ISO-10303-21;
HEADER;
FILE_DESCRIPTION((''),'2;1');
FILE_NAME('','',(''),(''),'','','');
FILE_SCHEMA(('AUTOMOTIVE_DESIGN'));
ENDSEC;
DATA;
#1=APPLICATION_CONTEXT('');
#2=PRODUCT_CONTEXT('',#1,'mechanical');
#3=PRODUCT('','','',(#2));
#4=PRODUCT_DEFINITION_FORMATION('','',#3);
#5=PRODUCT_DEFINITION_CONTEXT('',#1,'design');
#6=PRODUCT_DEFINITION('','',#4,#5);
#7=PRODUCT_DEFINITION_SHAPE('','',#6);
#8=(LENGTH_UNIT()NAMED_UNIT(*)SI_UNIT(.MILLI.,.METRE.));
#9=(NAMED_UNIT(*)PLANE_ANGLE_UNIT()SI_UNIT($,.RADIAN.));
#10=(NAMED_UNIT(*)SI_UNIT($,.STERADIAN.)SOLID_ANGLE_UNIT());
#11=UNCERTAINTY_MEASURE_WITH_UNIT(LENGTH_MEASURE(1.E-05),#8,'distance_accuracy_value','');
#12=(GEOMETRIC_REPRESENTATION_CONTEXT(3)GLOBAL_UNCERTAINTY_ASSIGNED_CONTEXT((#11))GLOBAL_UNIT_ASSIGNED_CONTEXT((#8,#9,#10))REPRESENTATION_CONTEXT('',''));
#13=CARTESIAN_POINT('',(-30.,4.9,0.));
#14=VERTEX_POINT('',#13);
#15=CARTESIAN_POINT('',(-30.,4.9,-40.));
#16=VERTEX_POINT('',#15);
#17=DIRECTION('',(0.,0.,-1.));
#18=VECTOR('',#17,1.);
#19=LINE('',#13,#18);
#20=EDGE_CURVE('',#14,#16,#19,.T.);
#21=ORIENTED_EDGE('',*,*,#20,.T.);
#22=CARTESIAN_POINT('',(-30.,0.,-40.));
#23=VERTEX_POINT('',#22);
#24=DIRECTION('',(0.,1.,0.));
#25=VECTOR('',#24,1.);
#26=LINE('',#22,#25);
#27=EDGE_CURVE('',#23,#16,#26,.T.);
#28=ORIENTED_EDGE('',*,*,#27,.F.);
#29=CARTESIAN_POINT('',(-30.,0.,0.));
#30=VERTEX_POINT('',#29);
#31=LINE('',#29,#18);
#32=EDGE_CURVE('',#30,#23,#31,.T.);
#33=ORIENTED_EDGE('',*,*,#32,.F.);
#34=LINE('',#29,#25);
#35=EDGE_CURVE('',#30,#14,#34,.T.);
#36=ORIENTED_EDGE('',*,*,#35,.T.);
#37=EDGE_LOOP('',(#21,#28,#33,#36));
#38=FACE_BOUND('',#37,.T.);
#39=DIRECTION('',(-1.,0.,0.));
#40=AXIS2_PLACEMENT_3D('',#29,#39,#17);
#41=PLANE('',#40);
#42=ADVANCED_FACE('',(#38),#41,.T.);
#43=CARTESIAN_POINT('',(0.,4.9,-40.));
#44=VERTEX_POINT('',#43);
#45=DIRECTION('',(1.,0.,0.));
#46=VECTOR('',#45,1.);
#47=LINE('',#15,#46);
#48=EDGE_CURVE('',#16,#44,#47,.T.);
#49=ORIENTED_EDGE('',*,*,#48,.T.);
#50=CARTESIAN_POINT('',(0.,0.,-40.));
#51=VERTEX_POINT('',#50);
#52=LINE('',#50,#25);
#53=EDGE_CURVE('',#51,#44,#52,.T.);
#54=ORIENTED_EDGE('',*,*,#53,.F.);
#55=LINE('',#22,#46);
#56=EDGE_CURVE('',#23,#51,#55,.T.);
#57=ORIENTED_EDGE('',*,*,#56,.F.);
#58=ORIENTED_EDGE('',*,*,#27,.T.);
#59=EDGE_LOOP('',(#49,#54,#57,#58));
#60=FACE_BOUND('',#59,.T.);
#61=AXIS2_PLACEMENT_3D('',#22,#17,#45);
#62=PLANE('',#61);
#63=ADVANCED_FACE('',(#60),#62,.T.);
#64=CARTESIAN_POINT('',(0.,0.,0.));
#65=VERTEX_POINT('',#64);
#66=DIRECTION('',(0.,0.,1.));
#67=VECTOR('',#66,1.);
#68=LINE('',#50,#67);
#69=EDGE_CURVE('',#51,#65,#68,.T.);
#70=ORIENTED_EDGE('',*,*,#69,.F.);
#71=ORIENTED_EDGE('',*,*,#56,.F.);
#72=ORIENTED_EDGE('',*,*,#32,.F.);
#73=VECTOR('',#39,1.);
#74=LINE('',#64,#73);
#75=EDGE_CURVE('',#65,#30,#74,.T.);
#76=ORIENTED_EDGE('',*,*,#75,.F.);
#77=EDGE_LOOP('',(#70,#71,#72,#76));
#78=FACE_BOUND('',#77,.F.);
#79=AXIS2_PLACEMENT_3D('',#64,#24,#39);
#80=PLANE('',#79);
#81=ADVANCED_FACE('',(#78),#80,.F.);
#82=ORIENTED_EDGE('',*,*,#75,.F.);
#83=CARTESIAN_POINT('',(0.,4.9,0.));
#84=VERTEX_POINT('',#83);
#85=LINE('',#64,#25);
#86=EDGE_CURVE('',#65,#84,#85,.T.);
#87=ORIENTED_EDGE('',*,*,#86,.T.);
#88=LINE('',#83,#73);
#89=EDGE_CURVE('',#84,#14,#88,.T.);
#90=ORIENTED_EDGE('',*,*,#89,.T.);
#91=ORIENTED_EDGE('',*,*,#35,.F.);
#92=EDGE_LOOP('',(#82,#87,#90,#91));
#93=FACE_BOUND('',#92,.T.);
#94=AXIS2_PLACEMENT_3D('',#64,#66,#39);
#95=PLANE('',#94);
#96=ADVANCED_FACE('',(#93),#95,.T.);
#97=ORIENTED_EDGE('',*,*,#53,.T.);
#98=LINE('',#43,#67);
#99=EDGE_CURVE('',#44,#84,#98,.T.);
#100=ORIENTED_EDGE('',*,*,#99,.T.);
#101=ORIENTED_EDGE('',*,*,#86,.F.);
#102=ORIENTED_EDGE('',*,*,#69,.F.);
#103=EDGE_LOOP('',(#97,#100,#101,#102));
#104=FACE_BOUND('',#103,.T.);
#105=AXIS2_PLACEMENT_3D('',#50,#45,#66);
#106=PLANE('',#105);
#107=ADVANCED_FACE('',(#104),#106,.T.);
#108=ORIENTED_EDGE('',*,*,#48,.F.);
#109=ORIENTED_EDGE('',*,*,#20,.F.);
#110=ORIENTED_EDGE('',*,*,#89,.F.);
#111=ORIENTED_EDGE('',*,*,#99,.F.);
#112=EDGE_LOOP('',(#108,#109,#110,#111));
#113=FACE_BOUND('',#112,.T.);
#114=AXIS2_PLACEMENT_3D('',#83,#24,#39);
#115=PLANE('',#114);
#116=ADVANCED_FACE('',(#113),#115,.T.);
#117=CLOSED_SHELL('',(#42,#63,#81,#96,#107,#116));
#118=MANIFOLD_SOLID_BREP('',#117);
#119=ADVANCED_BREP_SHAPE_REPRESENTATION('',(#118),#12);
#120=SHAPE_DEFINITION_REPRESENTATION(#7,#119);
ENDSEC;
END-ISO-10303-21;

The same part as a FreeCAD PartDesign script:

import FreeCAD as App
import Part
import Sketcher

V = App.Vector
Q = App.Units.Quantity


def add_polygon(sketch, points):
    """Adds a closed chain of lines whose ends are joined by coincident constraints."""
    first, n = sketch.GeometryCount, len(points)
    for a, b in zip(points, points[1:] + points[:1]):
        sketch.addGeometry(Part.LineSegment(App.Vector(*a, 0), App.Vector(*b, 0)), False)
    for i in range(n):
        sketch.addConstraint(Sketcher.Constraint("Coincident", first + i, 2, first + (i + 1) % n, 1))

doc = App.newDocument("Part")
params = doc.addObject("Spreadsheet::Sheet", "Params")
for row, (alias, value) in enumerate([
    ("sketch1_width", "30 mm"),
    ("sketch1_height", "40 mm"),
    ("pad1_length", "4.9 mm"),
], start=1):
    params.set(f"A{row}", alias)
    params.set(f"B{row}", "=" + value)
    params.setAlias(f"B{row}", alias)

body = doc.addObject("PartDesign::Body", "Body")

sketch1 = doc.addObject("Sketcher::SketchObject", "Sketch")
body.addObject(sketch1)
sketch1.AttachmentSupport = (doc.XZ_Plane, [""])
sketch1.MapMode = "FlatFace"
add_polygon(sketch1, [(-30, 0), (0, 0), (0, -40), (-30, -40)])
sketch1.addConstraint([
    Sketcher.Constraint("Horizontal", 0),
    Sketcher.Constraint("Vertical", 1),
    Sketcher.Constraint("Horizontal", 2),
    Sketcher.Constraint("Vertical", 3),
    Sketcher.Constraint("Coincident", 0, 2, -1, 1),
    Sketcher.Constraint("DistanceX", 0, 1, 0, 2, Q("30 mm")),
    Sketcher.Constraint("DistanceY", 1, 2, 1, 1, Q("40 mm")),
])
sketch1.setExpression("Constraints[9]", "Params.sketch1_width")
sketch1.setExpression("Constraints[10]", "Params.sketch1_height")
pad1 = doc.addObject("PartDesign::Pad", "Pad")
body.addObject(pad1)
pad1.Profile = sketch1
pad1.setExpression("Length", "Params.pad1_length")
pad1.Reversed = True

doc.recompute()
